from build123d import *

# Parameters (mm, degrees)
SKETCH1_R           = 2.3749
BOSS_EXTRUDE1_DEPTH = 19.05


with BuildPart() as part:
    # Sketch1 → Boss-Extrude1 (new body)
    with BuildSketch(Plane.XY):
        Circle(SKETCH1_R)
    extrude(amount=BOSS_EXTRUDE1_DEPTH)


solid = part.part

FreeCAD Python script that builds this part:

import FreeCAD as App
import Part
import Sketcher

V = App.Vector
Q = App.Units.Quantity

doc = App.newDocument("Part")
body = doc.addObject("PartDesign::Body", "Body")

sketch1 = body.newObject("Sketcher::SketchObject", "Sketch")
sketch1.AttachmentSupport = (doc.getObject("XY_Plane"), [""])
sketch1.MapMode = "FlatFace"
sketch1.addGeometry(Part.Circle(V(0, 0, 0), V(0, 0, 1), 2.4), False)
sketch1.addConstraint(Sketcher.Constraint("Coincident", 0, 3, -1, 1))
sketch1.addConstraint(Sketcher.Constraint("Diameter", 0, Q("0.187 in")))
pad1 = body.newObject("PartDesign::Pad", "Pad")
pad1.Profile = sketch1
pad1.Length = Q("0.75 in")

doc.recompute()
